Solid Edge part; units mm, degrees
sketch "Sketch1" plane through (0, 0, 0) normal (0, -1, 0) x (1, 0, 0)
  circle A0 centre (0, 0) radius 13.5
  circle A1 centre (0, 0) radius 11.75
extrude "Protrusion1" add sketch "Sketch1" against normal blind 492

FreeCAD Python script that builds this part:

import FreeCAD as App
import Part
import Sketcher
Q = App.Units.Quantity

doc = App.newDocument("Part")
params = doc.addObject("Spreadsheet::Sheet", "Params")
for row, (alias, value) in enumerate([
    ("sketch1_diameter", "27 mm"),
    ("sketch1_diameter2", "23.5 mm"),
    ("pad1_length", "492 mm"),
], start=1):
    params.set(f"A{row}", alias)
    params.set(f"B{row}", "=" + value)
    params.setAlias(f"B{row}", alias)

body = doc.addObject("PartDesign::Body", "Body")

# Sketch on XZ plane
sketch1 = doc.addObject("Sketcher::SketchObject", "Sketch")
body.addObject(sketch1)
sketch1.AttachmentSupport = (doc.XZ_Plane, [""])
sketch1.MapMode = "FlatFace"
sketch1.addGeometry(Part.Circle(App.Vector(0, 0, 0), App.Vector(0, 0, 1), 14), False)
sketch1.addGeometry(Part.Circle(App.Vector(0, 0, 0), App.Vector(0, 0, 1), 12), False)
sketch1.addConstraint(Sketcher.Constraint("Coincident", 0, 3, -1, 1))
sketch1.addConstraint(Sketcher.Constraint("Coincident", 1, 3, -1, 1))
sketch1.addConstraint(Sketcher.Constraint("Diameter", 0, Q("27 mm")))
sketch1.addConstraint(Sketcher.Constraint("Diameter", 1, Q("23.5 mm")))
sketch1.setExpression("Constraints[2]", "Params.sketch1_diameter")
sketch1.setExpression("Constraints[3]", "Params.sketch1_diameter2")
pad1 = doc.addObject("PartDesign::Pad", "Pad")
body.addObject(pad1)
pad1.Profile = sketch1
pad1.setExpression("Length", "Params.pad1_length")
pad1.Reversed = True

doc.recompute()
